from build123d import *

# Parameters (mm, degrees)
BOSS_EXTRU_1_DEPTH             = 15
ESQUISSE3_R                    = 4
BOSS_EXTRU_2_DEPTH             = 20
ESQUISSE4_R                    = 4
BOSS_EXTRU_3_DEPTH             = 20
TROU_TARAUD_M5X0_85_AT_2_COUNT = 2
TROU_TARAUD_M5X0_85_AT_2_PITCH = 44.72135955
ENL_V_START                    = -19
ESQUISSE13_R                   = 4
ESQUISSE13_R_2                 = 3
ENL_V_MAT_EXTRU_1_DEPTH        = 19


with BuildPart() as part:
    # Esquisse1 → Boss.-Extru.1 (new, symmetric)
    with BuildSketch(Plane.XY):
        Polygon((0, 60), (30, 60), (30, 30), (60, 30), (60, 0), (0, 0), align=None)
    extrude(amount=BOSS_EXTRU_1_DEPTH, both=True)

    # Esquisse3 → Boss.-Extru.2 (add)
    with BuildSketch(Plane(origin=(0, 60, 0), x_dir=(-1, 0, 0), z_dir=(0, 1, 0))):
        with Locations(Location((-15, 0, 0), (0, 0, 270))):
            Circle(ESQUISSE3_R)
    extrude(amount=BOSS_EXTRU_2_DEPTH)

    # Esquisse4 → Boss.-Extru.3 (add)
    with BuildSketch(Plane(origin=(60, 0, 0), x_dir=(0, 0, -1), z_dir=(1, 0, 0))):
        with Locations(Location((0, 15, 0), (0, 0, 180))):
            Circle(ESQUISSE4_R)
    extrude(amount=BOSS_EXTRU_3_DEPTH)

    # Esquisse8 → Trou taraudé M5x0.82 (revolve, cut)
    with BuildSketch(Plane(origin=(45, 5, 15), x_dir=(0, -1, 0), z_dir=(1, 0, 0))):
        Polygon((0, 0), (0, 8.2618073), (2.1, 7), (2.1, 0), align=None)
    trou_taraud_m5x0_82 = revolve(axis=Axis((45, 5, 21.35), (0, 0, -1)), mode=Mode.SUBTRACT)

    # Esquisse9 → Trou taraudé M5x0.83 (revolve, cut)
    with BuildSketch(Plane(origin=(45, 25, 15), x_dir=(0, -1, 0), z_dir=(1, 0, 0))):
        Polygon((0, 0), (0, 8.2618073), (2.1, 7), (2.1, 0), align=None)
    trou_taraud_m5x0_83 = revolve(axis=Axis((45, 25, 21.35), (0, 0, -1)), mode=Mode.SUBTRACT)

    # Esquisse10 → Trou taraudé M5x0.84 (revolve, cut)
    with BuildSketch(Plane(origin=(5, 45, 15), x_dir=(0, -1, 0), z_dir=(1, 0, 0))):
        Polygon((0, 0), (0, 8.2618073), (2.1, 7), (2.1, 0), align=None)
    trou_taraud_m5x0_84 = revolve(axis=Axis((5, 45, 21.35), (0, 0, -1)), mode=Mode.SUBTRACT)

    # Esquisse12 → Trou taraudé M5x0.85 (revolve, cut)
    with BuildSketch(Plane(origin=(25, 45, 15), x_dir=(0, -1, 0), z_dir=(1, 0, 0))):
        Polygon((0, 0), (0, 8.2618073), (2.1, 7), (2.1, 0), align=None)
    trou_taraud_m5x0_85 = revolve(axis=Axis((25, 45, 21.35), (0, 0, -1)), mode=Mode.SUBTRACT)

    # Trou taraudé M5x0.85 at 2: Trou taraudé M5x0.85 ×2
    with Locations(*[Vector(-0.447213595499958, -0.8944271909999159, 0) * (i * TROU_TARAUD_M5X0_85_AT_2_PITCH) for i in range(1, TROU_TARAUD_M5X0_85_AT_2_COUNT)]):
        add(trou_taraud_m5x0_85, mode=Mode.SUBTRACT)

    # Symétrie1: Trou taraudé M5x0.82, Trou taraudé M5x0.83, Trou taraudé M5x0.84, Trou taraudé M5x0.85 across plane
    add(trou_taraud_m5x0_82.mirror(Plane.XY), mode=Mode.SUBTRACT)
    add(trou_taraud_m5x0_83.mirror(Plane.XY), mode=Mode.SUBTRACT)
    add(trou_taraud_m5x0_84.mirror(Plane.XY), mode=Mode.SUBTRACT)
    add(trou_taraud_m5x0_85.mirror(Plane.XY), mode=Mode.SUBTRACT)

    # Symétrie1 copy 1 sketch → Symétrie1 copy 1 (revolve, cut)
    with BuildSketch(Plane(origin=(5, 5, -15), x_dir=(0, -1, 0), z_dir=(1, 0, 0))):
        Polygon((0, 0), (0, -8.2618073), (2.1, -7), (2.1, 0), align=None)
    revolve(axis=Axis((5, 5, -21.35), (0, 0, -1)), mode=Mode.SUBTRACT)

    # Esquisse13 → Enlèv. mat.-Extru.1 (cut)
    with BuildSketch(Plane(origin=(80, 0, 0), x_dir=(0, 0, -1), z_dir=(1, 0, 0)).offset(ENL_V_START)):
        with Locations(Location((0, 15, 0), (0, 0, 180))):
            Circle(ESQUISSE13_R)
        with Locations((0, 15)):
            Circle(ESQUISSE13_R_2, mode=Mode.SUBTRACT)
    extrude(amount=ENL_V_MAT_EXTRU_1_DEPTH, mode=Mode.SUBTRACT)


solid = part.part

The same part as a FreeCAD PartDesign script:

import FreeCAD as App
import Part
import Sketcher
Q = App.Units.Quantity

doc = App.newDocument("Part")
body = doc.addObject("PartDesign::Body", "Body")

sketch1 = body.newObject("Sketcher::SketchObject", "Sketch")
sketch1.AttachmentSupport = (doc.getObject("XY_Plane"), [""])
sketch1.MapMode = "FlatFace"
sketch1.addGeometry([
    Part.LineSegment(App.Vector(30, 60, 0), App.Vector(0, 60, 0)),
    Part.LineSegment(App.Vector(0, 60, 0), App.Vector(0, 0, 0)),
    Part.LineSegment(App.Vector(0, 0, 0), App.Vector(60, 0, 0)),
    Part.LineSegment(App.Vector(60, 0, 0), App.Vector(60, 30, 0)),
    Part.LineSegment(App.Vector(60, 30, 0), App.Vector(30, 30, 0)),
    Part.LineSegment(App.Vector(30, 30, 0), App.Vector(30, 60, 0)),
], False)
sketch1.addConstraint([
    Sketcher.Constraint("Coincident", 0, 2, 1, 1),
    Sketcher.Constraint("Coincident", 1, 2, 2, 1),
    Sketcher.Constraint("Coincident", 2, 2, 3, 1),
    Sketcher.Constraint("Coincident", 3, 2, 4, 1),
    Sketcher.Constraint("Coincident", 4, 2, 5, 1),
    Sketcher.Constraint("Coincident", 5, 2, 0, 1),
    Sketcher.Constraint("Horizontal", 0),
    Sketcher.Constraint("Vertical", 1),
    Sketcher.Constraint("Horizontal", 2),
    Sketcher.Constraint("Vertical", 3),
    Sketcher.Constraint("Horizontal", 4),
    Sketcher.Constraint("Vertical", 5),
    Sketcher.Constraint("Coincident", 1, 2, -1, 1),
    Sketcher.Constraint("Equal", 0, 4),
    Sketcher.Constraint("Equal", 2, 1),
    Sketcher.Constraint("Equal", 4, 3),
    Sketcher.Constraint("DistanceX", 0, 2, 0, 1, Q("30 mm")),
])
pad1 = body.newObject("PartDesign::Pad", "Pad")
pad1.Profile = sketch1
pad1.Length = 30
pad1.Midplane = True

sketch2 = body.newObject("Sketcher::SketchObject", "Sketch001")
sketch2.AttachmentSupport = (doc.getObject("XZ_Plane"), [""])
sketch2.MapMode = "FlatFace"
sketch2.AttachmentOffset = App.Placement(App.Vector(0, 0, -60), App.Rotation())
sketch2.addGeometry(Part.Circle(App.Vector(15, 0, 0), App.Vector(0, 0, 1), 4), False)
sketch2.addConstraint([
    Sketcher.Constraint("PointOnObject", 0, 3, -1),
    Sketcher.Constraint("Diameter", 0, Q("8 mm")),
    Sketcher.Constraint("DistanceX", -1, 1, 0, 3, Q("15 mm")),
])
pad2 = body.newObject("PartDesign::Pad", "Pad001")
pad2.Profile = sketch2
pad2.Length = 20
pad2.Reversed = True

sketch3 = body.newObject("Sketcher::SketchObject", "Sketch002")
sketch3.AttachmentSupport = (doc.getObject("YZ_Plane"), [""])
sketch3.MapMode = "FlatFace"
sketch3.AttachmentOffset = App.Placement(App.Vector(0, 0, 60), App.Rotation())
sketch3.addGeometry(Part.Circle(App.Vector(15, 0, 0), App.Vector(0, 0, 1), 4), False)
sketch3.addConstraint([
    Sketcher.Constraint("PointOnObject", 0, 3, -1),
    Sketcher.Constraint("Diameter", 0, Q("8 mm")),
    Sketcher.Constraint("DistanceX", -1, 1, 0, 3, Q("15 mm")),
])
pad3 = body.newObject("PartDesign::Pad", "Pad002")
pad3.Profile = sketch3
pad3.Length = 20

sketch4 = body.newObject("Sketcher::SketchObject", "Sketch003")
sketch4.AttachmentSupport = (doc.getObject("YZ_Plane"), [""])
sketch4.MapMode = "FlatFace"
sketch4.AttachmentOffset = App.Placement(App.Vector(0, 0, 45), App.Rotation())
sketch4.addGeometry([
    Part.LineSegment(App.Vector(5, 6.7, 0), App.Vector(5, 15, 0)),
    Part.LineSegment(App.Vector(5, 15, 0), App.Vector(2.9, 15, 0)),
    Part.LineSegment(App.Vector(2.9, 15, 0), App.Vector(2.9, 8, 0)),
    Part.LineSegment(App.Vector(2.9, 8, 0), App.Vector(5, 6.7, 0)),
], False)
sketch4.addGeometry(Part.LineSegment(App.Vector(5, 15, 0), App.Vector(5, 6.7, 0)), True)
sketch4.addConstraint([
    Sketcher.Constraint("Coincident", 0, 2, 1, 1),
    Sketcher.Constraint("Coincident", 1, 2, 2, 1),
    Sketcher.Constraint("Coincident", 2, 2, 3, 1),
    Sketcher.Constraint("Coincident", 3, 2, 0, 1),
    Sketcher.Constraint("Vertical", 0),
    Sketcher.Constraint("Horizontal", 1),
    Sketcher.Constraint("Vertical", 2),
    Sketcher.Constraint("Vertical", 4),
    Sketcher.Constraint("Coincident", 4, 1, 0, 2),
    Sketcher.Constraint("Equal", 0, 4),
    Sketcher.Constraint("DistanceY", 2, 2, 2, 1, Q("7 mm")),
    Sketcher.Constraint("Angle", 3, Q("-31 deg")),
    Sketcher.Constraint("DistanceX", 1, 2, 1, 1, Q("2.1 mm")),
    Sketcher.Constraint("DistanceX", -1, 1, 0, 2, Q("5 mm")),
    Sketcher.Constraint("DistanceY", -1, 1, 0, 2, Q("15 mm")),
])
groove = body.newObject("PartDesign::Groove", "Groove")
groove.Profile = sketch4
groove.ReferenceAxis = (sketch4, ["Axis0"])
groove.Angle = 360

sketch5 = body.newObject("Sketcher::SketchObject", "Sketch004")
sketch5.AttachmentSupport = (doc.getObject("YZ_Plane"), [""])
sketch5.MapMode = "FlatFace"
sketch5.AttachmentOffset = App.Placement(App.Vector(0, 0, 45), App.Rotation())
sketch5.addGeometry([
    Part.LineSegment(App.Vector(25, 6.7, 0), App.Vector(25, 15, 0)),
    Part.LineSegment(App.Vector(25, 15, 0), App.Vector(22.9, 15, 0)),
    Part.LineSegment(App.Vector(22.9, 15, 0), App.Vector(22.9, 8, 0)),
    Part.LineSegment(App.Vector(22.9, 8, 0), App.Vector(25, 6.7, 0)),
], False)
sketch5.addGeometry(Part.LineSegment(App.Vector(25, 15, 0), App.Vector(25, 6.7, 0)), True)
sketch5.addConstraint([
    Sketcher.Constraint("Coincident", 0, 2, 1, 1),
    Sketcher.Constraint("Coincident", 1, 2, 2, 1),
    Sketcher.Constraint("Coincident", 2, 2, 3, 1),
    Sketcher.Constraint("Coincident", 3, 2, 0, 1),
    Sketcher.Constraint("Vertical", 0),
    Sketcher.Constraint("Horizontal", 1),
    Sketcher.Constraint("Vertical", 2),
    Sketcher.Constraint("Vertical", 4),
    Sketcher.Constraint("Coincident", 4, 1, 0, 2),
    Sketcher.Constraint("Equal", 0, 4),
    Sketcher.Constraint("DistanceY", 2, 2, 2, 1, Q("7 mm")),
    Sketcher.Constraint("Angle", 3, Q("-31 deg")),
    Sketcher.Constraint("DistanceX", 1, 2, 1, 1, Q("2.1 mm")),
    Sketcher.Constraint("DistanceX", -1, 1, 0, 2, Q("25 mm")),
    Sketcher.Constraint("DistanceY", -1, 1, 0, 2, Q("15 mm")),
])
groove2 = body.newObject("PartDesign::Groove", "Groove001")
groove2.Profile = sketch5
groove2.ReferenceAxis = (sketch5, ["Axis0"])
groove2.Angle = 360

sketch6 = body.newObject("Sketcher::SketchObject", "Sketch005")
sketch6.AttachmentSupport = (doc.getObject("YZ_Plane"), [""])
sketch6.MapMode = "FlatFace"
sketch6.AttachmentOffset = App.Placement(App.Vector(0, 0, 5), App.Rotation())
sketch6.addGeometry([
    Part.LineSegment(App.Vector(45, 6.7, 0), App.Vector(45, 15, 0)),
    Part.LineSegment(App.Vector(45, 15, 0), App.Vector(42.9, 15, 0)),
    Part.LineSegment(App.Vector(42.9, 15, 0), App.Vector(42.9, 8, 0)),
    Part.LineSegment(App.Vector(42.9, 8, 0), App.Vector(45, 6.7, 0)),
], False)
sketch6.addGeometry(Part.LineSegment(App.Vector(45, 15, 0), App.Vector(45, 6.7, 0)), True)
sketch6.addConstraint([
    Sketcher.Constraint("Coincident", 0, 2, 1, 1),
    Sketcher.Constraint("Coincident", 1, 2, 2, 1),
    Sketcher.Constraint("Coincident", 2, 2, 3, 1),
    Sketcher.Constraint("Coincident", 3, 2, 0, 1),
    Sketcher.Constraint("Vertical", 0),
    Sketcher.Constraint("Horizontal", 1),
    Sketcher.Constraint("Vertical", 2),
    Sketcher.Constraint("Vertical", 4),
    Sketcher.Constraint("Coincident", 4, 1, 0, 2),
    Sketcher.Constraint("Equal", 0, 4),
    Sketcher.Constraint("DistanceY", 2, 2, 2, 1, Q("7 mm")),
    Sketcher.Constraint("Angle", 3, Q("-31 deg")),
    Sketcher.Constraint("DistanceX", 1, 2, 1, 1, Q("2.1 mm")),
    Sketcher.Constraint("DistanceX", -1, 1, 0, 2, Q("45 mm")),
    Sketcher.Constraint("DistanceY", -1, 1, 0, 2, Q("15 mm")),
])
groove3 = body.newObject("PartDesign::Groove", "Groove002")
groove3.Profile = sketch6
groove3.ReferenceAxis = (sketch6, ["Axis0"])
groove3.Angle = 360

sketch7 = body.newObject("Sketcher::SketchObject", "Sketch006")
sketch7.AttachmentSupport = (doc.getObject("YZ_Plane"), [""])
sketch7.MapMode = "FlatFace"
sketch7.AttachmentOffset = App.Placement(App.Vector(0, 0, 25), App.Rotation())
sketch7.addGeometry([
    Part.LineSegment(App.Vector(45, 6.7, 0), App.Vector(45, 15, 0)),
    Part.LineSegment(App.Vector(45, 15, 0), App.Vector(42.9, 15, 0)),
    Part.LineSegment(App.Vector(42.9, 15, 0), App.Vector(42.9, 8, 0)),
    Part.LineSegment(App.Vector(42.9, 8, 0), App.Vector(45, 6.7, 0)),
], False)
sketch7.addGeometry(Part.LineSegment(App.Vector(45, 15, 0), App.Vector(45, 6.7, 0)), True)
sketch7.addConstraint([
    Sketcher.Constraint("Coincident", 0, 2, 1, 1),
    Sketcher.Constraint("Coincident", 1, 2, 2, 1),
    Sketcher.Constraint("Coincident", 2, 2, 3, 1),
    Sketcher.Constraint("Coincident", 3, 2, 0, 1),
    Sketcher.Constraint("Vertical", 0),
    Sketcher.Constraint("Horizontal", 1),
    Sketcher.Constraint("Vertical", 2),
    Sketcher.Constraint("Vertical", 4),
    Sketcher.Constraint("Coincident", 4, 1, 0, 2),
    Sketcher.Constraint("Equal", 0, 4),
    Sketcher.Constraint("DistanceY", 2, 2, 2, 1, Q("7 mm")),
    Sketcher.Constraint("Angle", 3, Q("-31 deg")),
    Sketcher.Constraint("DistanceX", 1, 2, 1, 1, Q("2.1 mm")),
    Sketcher.Constraint("DistanceX", -1, 1, 0, 2, Q("45 mm")),
    Sketcher.Constraint("DistanceY", -1, 1, 0, 2, Q("15 mm")),
])
groove4 = body.newObject("PartDesign::Groove", "Groove003")
groove4.Profile = sketch7
groove4.ReferenceAxis = (sketch7, ["Axis0"])
groove4.Angle = 360
doc.recompute()

datumline = body.newObject("PartDesign::Line", "DatumLine")
datumline.Placement = App.Placement(App.Vector(0, 0, 0), App.Rotation(App.Vector(0, 0, 1), App.Vector(-0.447213595, -0.894427191, 0)))
linearpattern = body.newObject("PartDesign::LinearPattern", "LinearPattern")
linearpattern.Originals = [groove4]
linearpattern.Direction = (datumline, [""])
linearpattern.Mode = "offset"
linearpattern.Offset = 44.72136
linearpattern.Occurrences = 2
body.Tip = linearpattern
doc.recompute()

mirrored = body.newObject("PartDesign::Mirrored", "Mirrored")
mirrored.Originals = [groove, groove2, groove3, groove4]
mirrored.MirrorPlane = (doc.getObject("XY_Plane"), [""])
body.Tip = mirrored

sketch8 = body.newObject("Sketcher::SketchObject", "Sketch007")
sketch8.AttachmentSupport = (doc.getObject("YZ_Plane"), [""])
sketch8.MapMode = "FlatFace"
sketch8.AttachmentOffset = App.Placement(App.Vector(0, 0, 5), App.Rotation())
sketch8.addGeometry([
    Part.LineSegment(App.Vector(5, -15, 0), App.Vector(5, -6.7, 0)),
    Part.LineSegment(App.Vector(5, -6.7, 0), App.Vector(2.9, -8, 0)),
    Part.LineSegment(App.Vector(2.9, -8, 0), App.Vector(2.9, -15, 0)),
    Part.LineSegment(App.Vector(2.9, -15, 0), App.Vector(5, -15, 0)),
], False)
sketch8.addGeometry(Part.LineSegment(App.Vector(5, -6.7, 0), App.Vector(5, -15, 0)), True)
sketch8.addConstraint([
    Sketcher.Constraint("Coincident", 0, 2, 1, 1),
    Sketcher.Constraint("Coincident", 1, 2, 2, 1),
    Sketcher.Constraint("Coincident", 2, 2, 3, 1),
    Sketcher.Constraint("Coincident", 3, 2, 0, 1),
    Sketcher.Constraint("Vertical", 0),
    Sketcher.Constraint("Vertical", 2),
    Sketcher.Constraint("Horizontal", 3),
    Sketcher.Constraint("Vertical", 4),
    Sketcher.Constraint("Coincident", 4, 1, 0, 2),
    Sketcher.Constraint("Horizontal", 2, 2, 4, 2),
    Sketcher.Constraint("DistanceY", 2, 2, 2, 1, Q("7 mm")),
    Sketcher.Constraint("Angle", 1, Q("-149 deg")),
    Sketcher.Constraint("DistanceX", 3, 1, 3, 2, Q("2.1 mm")),
    Sketcher.Constraint("DistanceX", -1, 1, 0, 2, Q("5 mm")),
    Sketcher.Constraint("DistanceY", 1, 2, -1, 1, Q("8 mm")),
])
groove5 = body.newObject("PartDesign::Groove", "Groove004")
groove5.Profile = sketch8
groove5.ReferenceAxis = (sketch8, ["Axis0"])
groove5.Angle = 360

sketch9 = body.newObject("Sketcher::SketchObject", "Sketch008")
sketch9.AttachmentSupport = (doc.getObject("YZ_Plane"), [""])
sketch9.MapMode = "FlatFace"
sketch9.AttachmentOffset = App.Placement(App.Vector(0, 0, 61), App.Rotation())
sketch9.addGeometry([
    Part.Circle(App.Vector(15, 0, 0), App.Vector(0, 0, 1), 4),
    Part.Circle(App.Vector(15, 0, 0), App.Vector(0, 0, 1), 3),
], False)
sketch9.addConstraint([
    Sketcher.Constraint("Coincident", 1, 3, 0, 3),
    Sketcher.Constraint("PointOnObject", 0, 3, -1),
    Sketcher.Constraint("Diameter", 0, Q("8 mm")),
    Sketcher.Constraint("Diameter", 1, Q("6 mm")),
    Sketcher.Constraint("DistanceX", -1, 1, 0, 3, Q("15 mm")),
])
pocket1 = body.newObject("PartDesign::Pocket", "Pocket")
pocket1.Profile = sketch9
pocket1.Length = 19
pocket1.Reversed = True

doc.recompute()
